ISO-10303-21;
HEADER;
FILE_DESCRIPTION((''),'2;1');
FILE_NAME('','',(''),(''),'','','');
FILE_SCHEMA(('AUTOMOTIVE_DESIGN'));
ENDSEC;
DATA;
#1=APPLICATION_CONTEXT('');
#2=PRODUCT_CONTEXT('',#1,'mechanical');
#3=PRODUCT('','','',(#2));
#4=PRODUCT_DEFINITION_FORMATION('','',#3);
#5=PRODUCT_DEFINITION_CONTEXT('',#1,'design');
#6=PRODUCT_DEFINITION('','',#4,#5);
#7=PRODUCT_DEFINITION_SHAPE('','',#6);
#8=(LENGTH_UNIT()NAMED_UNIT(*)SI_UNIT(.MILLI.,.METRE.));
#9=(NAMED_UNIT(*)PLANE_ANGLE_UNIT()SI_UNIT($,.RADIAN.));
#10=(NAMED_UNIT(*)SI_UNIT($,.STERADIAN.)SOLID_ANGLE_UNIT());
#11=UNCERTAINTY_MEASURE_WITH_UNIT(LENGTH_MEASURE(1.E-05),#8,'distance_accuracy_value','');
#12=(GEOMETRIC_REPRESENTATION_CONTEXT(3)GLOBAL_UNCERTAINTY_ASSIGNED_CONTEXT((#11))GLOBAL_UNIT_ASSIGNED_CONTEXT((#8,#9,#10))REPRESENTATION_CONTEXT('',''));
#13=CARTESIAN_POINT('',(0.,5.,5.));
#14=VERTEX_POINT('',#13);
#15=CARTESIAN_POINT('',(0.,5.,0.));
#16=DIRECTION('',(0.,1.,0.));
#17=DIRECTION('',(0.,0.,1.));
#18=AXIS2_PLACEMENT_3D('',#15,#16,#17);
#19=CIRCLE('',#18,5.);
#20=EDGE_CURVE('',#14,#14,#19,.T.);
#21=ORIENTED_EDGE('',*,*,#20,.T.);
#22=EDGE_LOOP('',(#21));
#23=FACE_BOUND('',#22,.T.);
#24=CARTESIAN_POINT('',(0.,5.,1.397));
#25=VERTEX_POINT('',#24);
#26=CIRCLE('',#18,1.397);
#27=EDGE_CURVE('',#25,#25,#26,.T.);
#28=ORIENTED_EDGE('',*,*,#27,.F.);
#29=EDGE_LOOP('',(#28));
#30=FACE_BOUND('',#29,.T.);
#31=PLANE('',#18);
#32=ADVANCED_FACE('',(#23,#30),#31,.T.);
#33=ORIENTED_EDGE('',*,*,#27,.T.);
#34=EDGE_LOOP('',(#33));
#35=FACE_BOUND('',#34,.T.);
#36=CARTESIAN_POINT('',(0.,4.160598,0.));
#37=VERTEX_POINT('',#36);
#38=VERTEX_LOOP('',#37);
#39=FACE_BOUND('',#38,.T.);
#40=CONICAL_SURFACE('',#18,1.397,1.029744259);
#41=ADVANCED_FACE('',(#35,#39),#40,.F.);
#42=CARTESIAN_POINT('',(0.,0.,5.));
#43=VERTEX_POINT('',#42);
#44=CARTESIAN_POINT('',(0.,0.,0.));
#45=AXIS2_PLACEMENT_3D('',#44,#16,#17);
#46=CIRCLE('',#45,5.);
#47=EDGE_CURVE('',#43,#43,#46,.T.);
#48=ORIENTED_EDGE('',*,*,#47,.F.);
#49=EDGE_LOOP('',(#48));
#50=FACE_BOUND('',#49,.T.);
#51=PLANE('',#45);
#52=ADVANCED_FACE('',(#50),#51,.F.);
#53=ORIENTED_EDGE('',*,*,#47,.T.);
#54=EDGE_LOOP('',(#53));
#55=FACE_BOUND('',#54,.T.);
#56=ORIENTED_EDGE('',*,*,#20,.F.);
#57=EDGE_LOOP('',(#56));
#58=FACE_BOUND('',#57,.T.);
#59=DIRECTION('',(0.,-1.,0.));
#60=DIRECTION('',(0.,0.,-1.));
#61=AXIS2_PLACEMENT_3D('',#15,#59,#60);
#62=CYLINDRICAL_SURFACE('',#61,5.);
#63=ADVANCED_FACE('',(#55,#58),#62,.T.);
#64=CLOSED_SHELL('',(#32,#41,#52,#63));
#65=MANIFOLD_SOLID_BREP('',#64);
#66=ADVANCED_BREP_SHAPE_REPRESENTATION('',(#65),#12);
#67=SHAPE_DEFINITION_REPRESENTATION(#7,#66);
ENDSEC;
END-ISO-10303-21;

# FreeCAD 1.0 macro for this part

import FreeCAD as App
import Part
import Sketcher
from FreeCAD import Vector
Q = App.Units.Quantity

doc = App.newDocument("Part")
body = doc.addObject("PartDesign::Body", "Body")

# Sketch on XZ plane
sketch1 = body.newObject("Sketcher::SketchObject", "Sketch")
sketch1.AttachmentSupport = (doc.getObject("XZ_Plane"), [""])
sketch1.MapMode = "FlatFace"
sketch1.addGeometry(Part.Circle(Vector(0, 0, 0), Vector(0, 0, 1), 5), False)
sketch1.addConstraint([
    Sketcher.Constraint("Coincident", 0, 3, -1, 1),
    Sketcher.Constraint("Diameter", 0, Q("10 mm")),
])
pad1 = body.newObject("PartDesign::Pad", "Pad")
pad1.Profile = sketch1
pad1.Length = 5
pad1.Reversed = True

# Sketch on YZ plane
sketch2 = body.newObject("Sketcher::SketchObject", "Sketch001")
sketch2.AttachmentSupport = (doc.getObject("YZ_Plane"), [""])
sketch2.MapMode = "FlatFace"
sketch2.addGeometry([
    Part.LineSegment(Vector(4.2, -152, 0), Vector(11, -152, 0)),  # 0
    Part.LineSegment(Vector(11, -152, 0), Vector(11, -148.6, 0)),  # 1
    Part.LineSegment(Vector(11, -148.6, 0), Vector(10.4, -149.2, 0)),  # 2
    Part.LineSegment(Vector(10.4, -149.2, 0), Vector(9.2, -149.2, 0)),  # 3
    Part.LineSegment(Vector(9.2, -149.2, 0), Vector(9.2, -150.6, 0)),  # 4
    Part.LineSegment(Vector(9.2, -150.6, 0), Vector(5, -150.6, 0)),  # 5
    Part.LineSegment(Vector(5, -150.6, 0), Vector(4.2, -152, 0)),  # 6
], False)
sketch2.addGeometry(Part.LineSegment(Vector(11, -152, 0), Vector(4.2, -152, 0)), True)  # axis
sketch2.addConstraint([
    Sketcher.Constraint("Coincident", 0, 2, 1, 1),
    Sketcher.Constraint("Coincident", 1, 2, 2, 1),
    Sketcher.Constraint("Coincident", 2, 2, 3, 1),
    Sketcher.Constraint("Coincident", 3, 2, 4, 1),
    Sketcher.Constraint("Coincident", 4, 2, 5, 1),
    Sketcher.Constraint("Coincident", 5, 2, 6, 1),
    Sketcher.Constraint("Coincident", 6, 2, 0, 1),
    Sketcher.Constraint("Horizontal", 0),
    Sketcher.Constraint("Vertical", 1),
    Sketcher.Constraint("Horizontal", 3),
    Sketcher.Constraint("Vertical", 4),
    Sketcher.Constraint("Horizontal", 5),
    Sketcher.Constraint("Horizontal", 7),
    Sketcher.Constraint("Coincident", 7, 1, 0, 2),
    Sketcher.Constraint("Equal", 0, 7),
    Sketcher.Constraint("Angle", 2, Q("-135 deg")),
    Sketcher.Constraint("Angle", 6, Q("-121 deg")),
    Sketcher.Constraint("DistanceX", -1, 1, 0, 2, Q("11 mm")),
    Sketcher.Constraint("DistanceY", 0, 2, -1, 1, Q("152 mm")),
    Sketcher.Constraint("DistanceX", -1, 1, 5, 2, Q("5 mm")),
    Sketcher.Constraint("DistanceX", 3, 2, 3, 1, Q("1.1684 mm")),
    Sketcher.Constraint("DistanceX", 5, 2, 5, 1, Q("4.1966 mm")),
    Sketcher.Constraint("DistanceY", 4, 2, -1, 1, Q("150.603 mm")),
    Sketcher.Constraint("DistanceY", 1, 1, 1, 2, Q("3.41376 mm")),
])
groove = body.newObject("PartDesign::Groove", "Groove")
groove.Profile = sketch2
groove.ReferenceAxis = (sketch2, ["Axis0"])
groove.Angle = 360
doc.recompute()

linearpattern = body.newObject("PartDesign::LinearPattern", "LinearPattern")
linearpattern.Originals = [groove]
linearpattern.Direction = (doc.getObject("Z_Axis"), [""])
linearpattern.Mode = "offset"
linearpattern.Offset = 152
linearpattern.Occurrences = 2
body.Tip = linearpattern
doc.recompute()

linearpattern2 = body.newObject("PartDesign::LinearPattern", "LinearPattern001")
linearpattern2.Originals = [groove]
linearpattern2.Direction = (doc.getObject("X_Axis"), [""])
linearpattern2.Mode = "offset"
linearpattern2.Offset = 111
linearpattern2.Occurrences = 2
body.Tip = linearpattern2
doc.recompute()

datumline = body.newObject("PartDesign::Line", "DatumLine")
datumline.Placement = App.Placement(Vector(0, 0, 0), App.Rotation(Vector(0, 0, 1), Vector(0.589750135, 0, 0.807585771)))
linearpattern3 = body.newObject("PartDesign::LinearPattern", "LinearPattern002")
linearpattern3.Originals = [groove]
linearpattern3.Direction = (datumline, [""])
linearpattern3.Mode = "offset"
linearpattern3.Offset = 188.215302
linearpattern3.Occurrences = 2
body.Tip = linearpattern3

# Sketch on YZ plane
sketch3 = body.newObject("Sketcher::SketchObject", "Sketch002")
sketch3.AttachmentSupport = (doc.getObject("YZ_Plane"), [""])
sketch3.MapMode = "FlatFace"
sketch3.addGeometry([
    Part.LineSegment(Vector(4.2, 0, 0), Vector(11, 0, 0)),  # 0
    Part.LineSegment(Vector(11, 0, 0), Vector(11, 3.4, 0)),  # 1
    Part.LineSegment(Vector(11, 3.4, 0), Vector(10.4, 2.8, 0)),  # 2
    Part.LineSegment(Vector(10.4, 2.8, 0), Vector(9.2, 2.8, 0)),  # 3
    Part.LineSegment(Vector(9.2, 2.8, 0), Vector(9.2, 1.4, 0)),  # 4
    Part.LineSegment(Vector(9.2, 1.4, 0), Vector(5, 1.4, 0)),  # 5
    Part.LineSegment(Vector(5, 1.4, 0), Vector(4.2, 0, 0)),  # 6
], False)
sketch3.addConstraint([
    Sketcher.Constraint("Coincident", 0, 2, 1, 1),
    Sketcher.Constraint("Coincident", 1, 2, 2, 1),
    Sketcher.Constraint("Coincident", 2, 2, 3, 1),
    Sketcher.Constraint("Coincident", 3, 2, 4, 1),
    Sketcher.Constraint("Coincident", 4, 2, 5, 1),
    Sketcher.Constraint("Coincident", 5, 2, 6, 1),
    Sketcher.Constraint("Coincident", 6, 2, 0, 1),
    Sketcher.Constraint("Horizontal", 0),
    Sketcher.Constraint("Vertical", 1),
    Sketcher.Constraint("Horizontal", 3),
    Sketcher.Constraint("Vertical", 4),
    Sketcher.Constraint("Horizontal", 5),
    Sketcher.Constraint("PointOnObject", 0, 2, -1),
    Sketcher.Constraint("Angle", 2, Q("-135 deg")),
    Sketcher.Constraint("Angle", 6, Q("-121 deg")),
    Sketcher.Constraint("DistanceX", -1, 1, 0, 2, Q("11 mm")),
    Sketcher.Constraint("DistanceX", -1, 1, 5, 2, Q("5 mm")),
    Sketcher.Constraint("DistanceX", 3, 2, 3, 1, Q("1.1684 mm")),
    Sketcher.Constraint("DistanceX", 5, 2, 5, 1, Q("4.1966 mm")),
    Sketcher.Constraint("DistanceY", -1, 1, 4, 2, Q("1.397 mm")),
    Sketcher.Constraint("DistanceY", 1, 1, 1, 2, Q("3.41376 mm")),
])
groove2 = body.newObject("PartDesign::Groove", "Groove001")
groove2.Profile = sketch3
groove2.ReferenceAxis = (sketch3, ["H_Axis"])
groove2.Angle = 360
doc.recompute()

datumline2 = body.newObject("PartDesign::Line", "DatumLine001")
datumline2.Placement = App.Placement(Vector(0, 0, 0), App.Rotation(Vector(0, 0, 1), Vector(-0.498737082, 0, -0.866753323)))
linearpattern4 = body.newObject("PartDesign::LinearPattern", "LinearPattern003")
linearpattern4.Originals = [groove2]
linearpattern4.Direction = (datumline2, [""])
linearpattern4.Mode = "offset"
linearpattern4.Offset = 152
linearpattern4.Occurrences = 2
body.Tip = linearpattern4
doc.recompute()

datumline3 = body.newObject("PartDesign::Line", "DatumLine002")
datumline3.Placement = App.Placement(Vector(0, 0, 0), App.Rotation(Vector(0, 0, 1), Vector(-0.866753323, 0, 0.498737082)))
linearpattern5 = body.newObject("PartDesign::LinearPattern", "LinearPattern004")
linearpattern5.Originals = [groove2]
linearpattern5.Direction = (datumline3, [""])
linearpattern5.Mode = "offset"
linearpattern5.Offset = 111
linearpattern5.Occurrences = 2
body.Tip = linearpattern5
doc.recompute()

datumline4 = body.newObject("PartDesign::Line", "DatumLine003")
datumline4.Placement = App.Placement(Vector(0, 0, 0), App.Rotation(Vector(0, 0, 1), Vector(-0.913940861, 0, -0.405847389)))
linearpattern6 = body.newObject("PartDesign::LinearPattern", "LinearPattern005")
linearpattern6.Originals = [groove2]
linearpattern6.Direction = (datumline4, [""])
linearpattern6.Mode = "offset"
linearpattern6.Offset = 188.215302
linearpattern6.Occurrences = 2
body.Tip = linearpattern6

doc.recompute()
